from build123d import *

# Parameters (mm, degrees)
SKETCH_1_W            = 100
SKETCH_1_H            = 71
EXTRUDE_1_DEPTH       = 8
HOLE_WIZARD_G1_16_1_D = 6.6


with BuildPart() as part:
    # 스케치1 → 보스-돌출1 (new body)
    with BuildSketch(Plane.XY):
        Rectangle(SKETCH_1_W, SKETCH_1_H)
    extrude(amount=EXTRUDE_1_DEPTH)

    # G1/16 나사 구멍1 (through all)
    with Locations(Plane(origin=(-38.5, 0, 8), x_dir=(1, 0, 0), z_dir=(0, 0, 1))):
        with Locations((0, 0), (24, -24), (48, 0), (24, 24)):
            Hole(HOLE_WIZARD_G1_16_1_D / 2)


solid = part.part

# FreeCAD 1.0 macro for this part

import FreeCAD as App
import Part
import Sketcher

V = App.Vector

doc = App.newDocument("Part")
params = doc.addObject("Spreadsheet::Sheet", "Params")
for row, (alias, value) in enumerate([
    ("sketch1_width", "100 mm"),
    ("sketch1_height", "71 mm"),
    ("pad1_length", "8 mm"),
    ("sketch2_diameter", "6.6 mm"),
    ("hole_diameter", "6.6 mm"),
], start=1):
    params.set(f"A{row}", alias)
    params.set(f"B{row}", "=" + value)
    params.setAlias(f"B{row}", alias)

body = doc.addObject("PartDesign::Body", "Body")

# Sketch on XY plane
sketch1 = body.newObject("Sketcher::SketchObject", "Sketch")
sketch1.AttachmentSupport = (doc.getObject("XY_Plane"), [""])
sketch1.MapMode = "FlatFace"
sketch1.addGeometry([
    Part.LineSegment(V(-50, 36, 0), V(-50, -36, 0)),
    Part.LineSegment(V(-50, -36, 0), V(50, -36, 0)),
    Part.LineSegment(V(50, -36, 0), V(50, 36, 0)),
    Part.LineSegment(V(50, 36, 0), V(-50, 36, 0)),
], False)
sketch1.addConstraint([
    Sketcher.Constraint("Coincident", 0, 2, 1, 1),
    Sketcher.Constraint("Coincident", 1, 2, 2, 1),
    Sketcher.Constraint("Coincident", 2, 2, 3, 1),
    Sketcher.Constraint("Coincident", 3, 2, 0, 1),
    Sketcher.Constraint("Vertical", 0),
    Sketcher.Constraint("Horizontal", 1),
    Sketcher.Constraint("Vertical", 2),
    Sketcher.Constraint("Horizontal", 3),
    Sketcher.Constraint("Symmetric", 0, 2, 2, 2, -1, 1),
    Sketcher.Constraint("DistanceX", 1, 1, 1, 2, 100.0),
    Sketcher.Constraint("DistanceY", 0, 2, 0, 1, 71.0),
])
sketch1.setExpression("Constraints[9]", "Params.sketch1_width")
sketch1.setExpression("Constraints[10]", "Params.sketch1_height")
pad1 = body.newObject("PartDesign::Pad", "Pad")
pad1.Profile = sketch1
pad1.setExpression("Length", "Params.pad1_length")

# Sketch on XY plane
sketch2 = body.newObject("Sketcher::SketchObject", "Sketch001")
sketch2.AttachmentSupport = (doc.getObject("XY_Plane"), [""])
sketch2.MapMode = "FlatFace"
sketch2.AttachmentOffset = App.Placement(V(0, 0, 8), App.Rotation())
sketch2.addGeometry([
    Part.Circle(V(-38.5, 0, 0), V(0, 0, 1), 3.3),
    Part.Circle(V(-14.5, -24, 0), V(0, 0, 1), 3.3),
    Part.Circle(V(9.5, 0, 0), V(0, 0, 1), 3.3),
    Part.Circle(V(-14.5, 24, 0), V(0, 0, 1), 3.3),
], False)
sketch2.addConstraint([
    Sketcher.Constraint("Equal", 0, 1),
    Sketcher.Constraint("Equal", 1, 2),
    Sketcher.Constraint("Equal", 2, 3),
    Sketcher.Constraint("Symmetric", 1, 3, 3, 3, -1),
    Sketcher.Constraint("PointOnObject", 0, 3, -1),
    Sketcher.Constraint("PointOnObject", 2, 3, -1),
    Sketcher.Constraint("Diameter", 0, 6.6),
    Sketcher.Constraint("DistanceY", 1, 3, -1, 1, 24.0),
    Sketcher.Constraint("DistanceX", 0, 3, 1, 3, 24.0),
    Sketcher.Constraint("DistanceX", 1, 3, 2, 3, 24.0),
    Sketcher.Constraint("DistanceX", 0, 3, -1, 1, 38.5),
])
sketch2.setExpression("Constraints[6]", "Params.sketch2_diameter")
doc.recompute()
hole = body.newObject("PartDesign::Hole", "Hole")
hole.Profile = sketch2
hole.ThreadType = "None"
hole.setExpression("Diameter", "Params.hole_diameter")
hole.DepthType = "ThroughAll"

doc.recompute()
